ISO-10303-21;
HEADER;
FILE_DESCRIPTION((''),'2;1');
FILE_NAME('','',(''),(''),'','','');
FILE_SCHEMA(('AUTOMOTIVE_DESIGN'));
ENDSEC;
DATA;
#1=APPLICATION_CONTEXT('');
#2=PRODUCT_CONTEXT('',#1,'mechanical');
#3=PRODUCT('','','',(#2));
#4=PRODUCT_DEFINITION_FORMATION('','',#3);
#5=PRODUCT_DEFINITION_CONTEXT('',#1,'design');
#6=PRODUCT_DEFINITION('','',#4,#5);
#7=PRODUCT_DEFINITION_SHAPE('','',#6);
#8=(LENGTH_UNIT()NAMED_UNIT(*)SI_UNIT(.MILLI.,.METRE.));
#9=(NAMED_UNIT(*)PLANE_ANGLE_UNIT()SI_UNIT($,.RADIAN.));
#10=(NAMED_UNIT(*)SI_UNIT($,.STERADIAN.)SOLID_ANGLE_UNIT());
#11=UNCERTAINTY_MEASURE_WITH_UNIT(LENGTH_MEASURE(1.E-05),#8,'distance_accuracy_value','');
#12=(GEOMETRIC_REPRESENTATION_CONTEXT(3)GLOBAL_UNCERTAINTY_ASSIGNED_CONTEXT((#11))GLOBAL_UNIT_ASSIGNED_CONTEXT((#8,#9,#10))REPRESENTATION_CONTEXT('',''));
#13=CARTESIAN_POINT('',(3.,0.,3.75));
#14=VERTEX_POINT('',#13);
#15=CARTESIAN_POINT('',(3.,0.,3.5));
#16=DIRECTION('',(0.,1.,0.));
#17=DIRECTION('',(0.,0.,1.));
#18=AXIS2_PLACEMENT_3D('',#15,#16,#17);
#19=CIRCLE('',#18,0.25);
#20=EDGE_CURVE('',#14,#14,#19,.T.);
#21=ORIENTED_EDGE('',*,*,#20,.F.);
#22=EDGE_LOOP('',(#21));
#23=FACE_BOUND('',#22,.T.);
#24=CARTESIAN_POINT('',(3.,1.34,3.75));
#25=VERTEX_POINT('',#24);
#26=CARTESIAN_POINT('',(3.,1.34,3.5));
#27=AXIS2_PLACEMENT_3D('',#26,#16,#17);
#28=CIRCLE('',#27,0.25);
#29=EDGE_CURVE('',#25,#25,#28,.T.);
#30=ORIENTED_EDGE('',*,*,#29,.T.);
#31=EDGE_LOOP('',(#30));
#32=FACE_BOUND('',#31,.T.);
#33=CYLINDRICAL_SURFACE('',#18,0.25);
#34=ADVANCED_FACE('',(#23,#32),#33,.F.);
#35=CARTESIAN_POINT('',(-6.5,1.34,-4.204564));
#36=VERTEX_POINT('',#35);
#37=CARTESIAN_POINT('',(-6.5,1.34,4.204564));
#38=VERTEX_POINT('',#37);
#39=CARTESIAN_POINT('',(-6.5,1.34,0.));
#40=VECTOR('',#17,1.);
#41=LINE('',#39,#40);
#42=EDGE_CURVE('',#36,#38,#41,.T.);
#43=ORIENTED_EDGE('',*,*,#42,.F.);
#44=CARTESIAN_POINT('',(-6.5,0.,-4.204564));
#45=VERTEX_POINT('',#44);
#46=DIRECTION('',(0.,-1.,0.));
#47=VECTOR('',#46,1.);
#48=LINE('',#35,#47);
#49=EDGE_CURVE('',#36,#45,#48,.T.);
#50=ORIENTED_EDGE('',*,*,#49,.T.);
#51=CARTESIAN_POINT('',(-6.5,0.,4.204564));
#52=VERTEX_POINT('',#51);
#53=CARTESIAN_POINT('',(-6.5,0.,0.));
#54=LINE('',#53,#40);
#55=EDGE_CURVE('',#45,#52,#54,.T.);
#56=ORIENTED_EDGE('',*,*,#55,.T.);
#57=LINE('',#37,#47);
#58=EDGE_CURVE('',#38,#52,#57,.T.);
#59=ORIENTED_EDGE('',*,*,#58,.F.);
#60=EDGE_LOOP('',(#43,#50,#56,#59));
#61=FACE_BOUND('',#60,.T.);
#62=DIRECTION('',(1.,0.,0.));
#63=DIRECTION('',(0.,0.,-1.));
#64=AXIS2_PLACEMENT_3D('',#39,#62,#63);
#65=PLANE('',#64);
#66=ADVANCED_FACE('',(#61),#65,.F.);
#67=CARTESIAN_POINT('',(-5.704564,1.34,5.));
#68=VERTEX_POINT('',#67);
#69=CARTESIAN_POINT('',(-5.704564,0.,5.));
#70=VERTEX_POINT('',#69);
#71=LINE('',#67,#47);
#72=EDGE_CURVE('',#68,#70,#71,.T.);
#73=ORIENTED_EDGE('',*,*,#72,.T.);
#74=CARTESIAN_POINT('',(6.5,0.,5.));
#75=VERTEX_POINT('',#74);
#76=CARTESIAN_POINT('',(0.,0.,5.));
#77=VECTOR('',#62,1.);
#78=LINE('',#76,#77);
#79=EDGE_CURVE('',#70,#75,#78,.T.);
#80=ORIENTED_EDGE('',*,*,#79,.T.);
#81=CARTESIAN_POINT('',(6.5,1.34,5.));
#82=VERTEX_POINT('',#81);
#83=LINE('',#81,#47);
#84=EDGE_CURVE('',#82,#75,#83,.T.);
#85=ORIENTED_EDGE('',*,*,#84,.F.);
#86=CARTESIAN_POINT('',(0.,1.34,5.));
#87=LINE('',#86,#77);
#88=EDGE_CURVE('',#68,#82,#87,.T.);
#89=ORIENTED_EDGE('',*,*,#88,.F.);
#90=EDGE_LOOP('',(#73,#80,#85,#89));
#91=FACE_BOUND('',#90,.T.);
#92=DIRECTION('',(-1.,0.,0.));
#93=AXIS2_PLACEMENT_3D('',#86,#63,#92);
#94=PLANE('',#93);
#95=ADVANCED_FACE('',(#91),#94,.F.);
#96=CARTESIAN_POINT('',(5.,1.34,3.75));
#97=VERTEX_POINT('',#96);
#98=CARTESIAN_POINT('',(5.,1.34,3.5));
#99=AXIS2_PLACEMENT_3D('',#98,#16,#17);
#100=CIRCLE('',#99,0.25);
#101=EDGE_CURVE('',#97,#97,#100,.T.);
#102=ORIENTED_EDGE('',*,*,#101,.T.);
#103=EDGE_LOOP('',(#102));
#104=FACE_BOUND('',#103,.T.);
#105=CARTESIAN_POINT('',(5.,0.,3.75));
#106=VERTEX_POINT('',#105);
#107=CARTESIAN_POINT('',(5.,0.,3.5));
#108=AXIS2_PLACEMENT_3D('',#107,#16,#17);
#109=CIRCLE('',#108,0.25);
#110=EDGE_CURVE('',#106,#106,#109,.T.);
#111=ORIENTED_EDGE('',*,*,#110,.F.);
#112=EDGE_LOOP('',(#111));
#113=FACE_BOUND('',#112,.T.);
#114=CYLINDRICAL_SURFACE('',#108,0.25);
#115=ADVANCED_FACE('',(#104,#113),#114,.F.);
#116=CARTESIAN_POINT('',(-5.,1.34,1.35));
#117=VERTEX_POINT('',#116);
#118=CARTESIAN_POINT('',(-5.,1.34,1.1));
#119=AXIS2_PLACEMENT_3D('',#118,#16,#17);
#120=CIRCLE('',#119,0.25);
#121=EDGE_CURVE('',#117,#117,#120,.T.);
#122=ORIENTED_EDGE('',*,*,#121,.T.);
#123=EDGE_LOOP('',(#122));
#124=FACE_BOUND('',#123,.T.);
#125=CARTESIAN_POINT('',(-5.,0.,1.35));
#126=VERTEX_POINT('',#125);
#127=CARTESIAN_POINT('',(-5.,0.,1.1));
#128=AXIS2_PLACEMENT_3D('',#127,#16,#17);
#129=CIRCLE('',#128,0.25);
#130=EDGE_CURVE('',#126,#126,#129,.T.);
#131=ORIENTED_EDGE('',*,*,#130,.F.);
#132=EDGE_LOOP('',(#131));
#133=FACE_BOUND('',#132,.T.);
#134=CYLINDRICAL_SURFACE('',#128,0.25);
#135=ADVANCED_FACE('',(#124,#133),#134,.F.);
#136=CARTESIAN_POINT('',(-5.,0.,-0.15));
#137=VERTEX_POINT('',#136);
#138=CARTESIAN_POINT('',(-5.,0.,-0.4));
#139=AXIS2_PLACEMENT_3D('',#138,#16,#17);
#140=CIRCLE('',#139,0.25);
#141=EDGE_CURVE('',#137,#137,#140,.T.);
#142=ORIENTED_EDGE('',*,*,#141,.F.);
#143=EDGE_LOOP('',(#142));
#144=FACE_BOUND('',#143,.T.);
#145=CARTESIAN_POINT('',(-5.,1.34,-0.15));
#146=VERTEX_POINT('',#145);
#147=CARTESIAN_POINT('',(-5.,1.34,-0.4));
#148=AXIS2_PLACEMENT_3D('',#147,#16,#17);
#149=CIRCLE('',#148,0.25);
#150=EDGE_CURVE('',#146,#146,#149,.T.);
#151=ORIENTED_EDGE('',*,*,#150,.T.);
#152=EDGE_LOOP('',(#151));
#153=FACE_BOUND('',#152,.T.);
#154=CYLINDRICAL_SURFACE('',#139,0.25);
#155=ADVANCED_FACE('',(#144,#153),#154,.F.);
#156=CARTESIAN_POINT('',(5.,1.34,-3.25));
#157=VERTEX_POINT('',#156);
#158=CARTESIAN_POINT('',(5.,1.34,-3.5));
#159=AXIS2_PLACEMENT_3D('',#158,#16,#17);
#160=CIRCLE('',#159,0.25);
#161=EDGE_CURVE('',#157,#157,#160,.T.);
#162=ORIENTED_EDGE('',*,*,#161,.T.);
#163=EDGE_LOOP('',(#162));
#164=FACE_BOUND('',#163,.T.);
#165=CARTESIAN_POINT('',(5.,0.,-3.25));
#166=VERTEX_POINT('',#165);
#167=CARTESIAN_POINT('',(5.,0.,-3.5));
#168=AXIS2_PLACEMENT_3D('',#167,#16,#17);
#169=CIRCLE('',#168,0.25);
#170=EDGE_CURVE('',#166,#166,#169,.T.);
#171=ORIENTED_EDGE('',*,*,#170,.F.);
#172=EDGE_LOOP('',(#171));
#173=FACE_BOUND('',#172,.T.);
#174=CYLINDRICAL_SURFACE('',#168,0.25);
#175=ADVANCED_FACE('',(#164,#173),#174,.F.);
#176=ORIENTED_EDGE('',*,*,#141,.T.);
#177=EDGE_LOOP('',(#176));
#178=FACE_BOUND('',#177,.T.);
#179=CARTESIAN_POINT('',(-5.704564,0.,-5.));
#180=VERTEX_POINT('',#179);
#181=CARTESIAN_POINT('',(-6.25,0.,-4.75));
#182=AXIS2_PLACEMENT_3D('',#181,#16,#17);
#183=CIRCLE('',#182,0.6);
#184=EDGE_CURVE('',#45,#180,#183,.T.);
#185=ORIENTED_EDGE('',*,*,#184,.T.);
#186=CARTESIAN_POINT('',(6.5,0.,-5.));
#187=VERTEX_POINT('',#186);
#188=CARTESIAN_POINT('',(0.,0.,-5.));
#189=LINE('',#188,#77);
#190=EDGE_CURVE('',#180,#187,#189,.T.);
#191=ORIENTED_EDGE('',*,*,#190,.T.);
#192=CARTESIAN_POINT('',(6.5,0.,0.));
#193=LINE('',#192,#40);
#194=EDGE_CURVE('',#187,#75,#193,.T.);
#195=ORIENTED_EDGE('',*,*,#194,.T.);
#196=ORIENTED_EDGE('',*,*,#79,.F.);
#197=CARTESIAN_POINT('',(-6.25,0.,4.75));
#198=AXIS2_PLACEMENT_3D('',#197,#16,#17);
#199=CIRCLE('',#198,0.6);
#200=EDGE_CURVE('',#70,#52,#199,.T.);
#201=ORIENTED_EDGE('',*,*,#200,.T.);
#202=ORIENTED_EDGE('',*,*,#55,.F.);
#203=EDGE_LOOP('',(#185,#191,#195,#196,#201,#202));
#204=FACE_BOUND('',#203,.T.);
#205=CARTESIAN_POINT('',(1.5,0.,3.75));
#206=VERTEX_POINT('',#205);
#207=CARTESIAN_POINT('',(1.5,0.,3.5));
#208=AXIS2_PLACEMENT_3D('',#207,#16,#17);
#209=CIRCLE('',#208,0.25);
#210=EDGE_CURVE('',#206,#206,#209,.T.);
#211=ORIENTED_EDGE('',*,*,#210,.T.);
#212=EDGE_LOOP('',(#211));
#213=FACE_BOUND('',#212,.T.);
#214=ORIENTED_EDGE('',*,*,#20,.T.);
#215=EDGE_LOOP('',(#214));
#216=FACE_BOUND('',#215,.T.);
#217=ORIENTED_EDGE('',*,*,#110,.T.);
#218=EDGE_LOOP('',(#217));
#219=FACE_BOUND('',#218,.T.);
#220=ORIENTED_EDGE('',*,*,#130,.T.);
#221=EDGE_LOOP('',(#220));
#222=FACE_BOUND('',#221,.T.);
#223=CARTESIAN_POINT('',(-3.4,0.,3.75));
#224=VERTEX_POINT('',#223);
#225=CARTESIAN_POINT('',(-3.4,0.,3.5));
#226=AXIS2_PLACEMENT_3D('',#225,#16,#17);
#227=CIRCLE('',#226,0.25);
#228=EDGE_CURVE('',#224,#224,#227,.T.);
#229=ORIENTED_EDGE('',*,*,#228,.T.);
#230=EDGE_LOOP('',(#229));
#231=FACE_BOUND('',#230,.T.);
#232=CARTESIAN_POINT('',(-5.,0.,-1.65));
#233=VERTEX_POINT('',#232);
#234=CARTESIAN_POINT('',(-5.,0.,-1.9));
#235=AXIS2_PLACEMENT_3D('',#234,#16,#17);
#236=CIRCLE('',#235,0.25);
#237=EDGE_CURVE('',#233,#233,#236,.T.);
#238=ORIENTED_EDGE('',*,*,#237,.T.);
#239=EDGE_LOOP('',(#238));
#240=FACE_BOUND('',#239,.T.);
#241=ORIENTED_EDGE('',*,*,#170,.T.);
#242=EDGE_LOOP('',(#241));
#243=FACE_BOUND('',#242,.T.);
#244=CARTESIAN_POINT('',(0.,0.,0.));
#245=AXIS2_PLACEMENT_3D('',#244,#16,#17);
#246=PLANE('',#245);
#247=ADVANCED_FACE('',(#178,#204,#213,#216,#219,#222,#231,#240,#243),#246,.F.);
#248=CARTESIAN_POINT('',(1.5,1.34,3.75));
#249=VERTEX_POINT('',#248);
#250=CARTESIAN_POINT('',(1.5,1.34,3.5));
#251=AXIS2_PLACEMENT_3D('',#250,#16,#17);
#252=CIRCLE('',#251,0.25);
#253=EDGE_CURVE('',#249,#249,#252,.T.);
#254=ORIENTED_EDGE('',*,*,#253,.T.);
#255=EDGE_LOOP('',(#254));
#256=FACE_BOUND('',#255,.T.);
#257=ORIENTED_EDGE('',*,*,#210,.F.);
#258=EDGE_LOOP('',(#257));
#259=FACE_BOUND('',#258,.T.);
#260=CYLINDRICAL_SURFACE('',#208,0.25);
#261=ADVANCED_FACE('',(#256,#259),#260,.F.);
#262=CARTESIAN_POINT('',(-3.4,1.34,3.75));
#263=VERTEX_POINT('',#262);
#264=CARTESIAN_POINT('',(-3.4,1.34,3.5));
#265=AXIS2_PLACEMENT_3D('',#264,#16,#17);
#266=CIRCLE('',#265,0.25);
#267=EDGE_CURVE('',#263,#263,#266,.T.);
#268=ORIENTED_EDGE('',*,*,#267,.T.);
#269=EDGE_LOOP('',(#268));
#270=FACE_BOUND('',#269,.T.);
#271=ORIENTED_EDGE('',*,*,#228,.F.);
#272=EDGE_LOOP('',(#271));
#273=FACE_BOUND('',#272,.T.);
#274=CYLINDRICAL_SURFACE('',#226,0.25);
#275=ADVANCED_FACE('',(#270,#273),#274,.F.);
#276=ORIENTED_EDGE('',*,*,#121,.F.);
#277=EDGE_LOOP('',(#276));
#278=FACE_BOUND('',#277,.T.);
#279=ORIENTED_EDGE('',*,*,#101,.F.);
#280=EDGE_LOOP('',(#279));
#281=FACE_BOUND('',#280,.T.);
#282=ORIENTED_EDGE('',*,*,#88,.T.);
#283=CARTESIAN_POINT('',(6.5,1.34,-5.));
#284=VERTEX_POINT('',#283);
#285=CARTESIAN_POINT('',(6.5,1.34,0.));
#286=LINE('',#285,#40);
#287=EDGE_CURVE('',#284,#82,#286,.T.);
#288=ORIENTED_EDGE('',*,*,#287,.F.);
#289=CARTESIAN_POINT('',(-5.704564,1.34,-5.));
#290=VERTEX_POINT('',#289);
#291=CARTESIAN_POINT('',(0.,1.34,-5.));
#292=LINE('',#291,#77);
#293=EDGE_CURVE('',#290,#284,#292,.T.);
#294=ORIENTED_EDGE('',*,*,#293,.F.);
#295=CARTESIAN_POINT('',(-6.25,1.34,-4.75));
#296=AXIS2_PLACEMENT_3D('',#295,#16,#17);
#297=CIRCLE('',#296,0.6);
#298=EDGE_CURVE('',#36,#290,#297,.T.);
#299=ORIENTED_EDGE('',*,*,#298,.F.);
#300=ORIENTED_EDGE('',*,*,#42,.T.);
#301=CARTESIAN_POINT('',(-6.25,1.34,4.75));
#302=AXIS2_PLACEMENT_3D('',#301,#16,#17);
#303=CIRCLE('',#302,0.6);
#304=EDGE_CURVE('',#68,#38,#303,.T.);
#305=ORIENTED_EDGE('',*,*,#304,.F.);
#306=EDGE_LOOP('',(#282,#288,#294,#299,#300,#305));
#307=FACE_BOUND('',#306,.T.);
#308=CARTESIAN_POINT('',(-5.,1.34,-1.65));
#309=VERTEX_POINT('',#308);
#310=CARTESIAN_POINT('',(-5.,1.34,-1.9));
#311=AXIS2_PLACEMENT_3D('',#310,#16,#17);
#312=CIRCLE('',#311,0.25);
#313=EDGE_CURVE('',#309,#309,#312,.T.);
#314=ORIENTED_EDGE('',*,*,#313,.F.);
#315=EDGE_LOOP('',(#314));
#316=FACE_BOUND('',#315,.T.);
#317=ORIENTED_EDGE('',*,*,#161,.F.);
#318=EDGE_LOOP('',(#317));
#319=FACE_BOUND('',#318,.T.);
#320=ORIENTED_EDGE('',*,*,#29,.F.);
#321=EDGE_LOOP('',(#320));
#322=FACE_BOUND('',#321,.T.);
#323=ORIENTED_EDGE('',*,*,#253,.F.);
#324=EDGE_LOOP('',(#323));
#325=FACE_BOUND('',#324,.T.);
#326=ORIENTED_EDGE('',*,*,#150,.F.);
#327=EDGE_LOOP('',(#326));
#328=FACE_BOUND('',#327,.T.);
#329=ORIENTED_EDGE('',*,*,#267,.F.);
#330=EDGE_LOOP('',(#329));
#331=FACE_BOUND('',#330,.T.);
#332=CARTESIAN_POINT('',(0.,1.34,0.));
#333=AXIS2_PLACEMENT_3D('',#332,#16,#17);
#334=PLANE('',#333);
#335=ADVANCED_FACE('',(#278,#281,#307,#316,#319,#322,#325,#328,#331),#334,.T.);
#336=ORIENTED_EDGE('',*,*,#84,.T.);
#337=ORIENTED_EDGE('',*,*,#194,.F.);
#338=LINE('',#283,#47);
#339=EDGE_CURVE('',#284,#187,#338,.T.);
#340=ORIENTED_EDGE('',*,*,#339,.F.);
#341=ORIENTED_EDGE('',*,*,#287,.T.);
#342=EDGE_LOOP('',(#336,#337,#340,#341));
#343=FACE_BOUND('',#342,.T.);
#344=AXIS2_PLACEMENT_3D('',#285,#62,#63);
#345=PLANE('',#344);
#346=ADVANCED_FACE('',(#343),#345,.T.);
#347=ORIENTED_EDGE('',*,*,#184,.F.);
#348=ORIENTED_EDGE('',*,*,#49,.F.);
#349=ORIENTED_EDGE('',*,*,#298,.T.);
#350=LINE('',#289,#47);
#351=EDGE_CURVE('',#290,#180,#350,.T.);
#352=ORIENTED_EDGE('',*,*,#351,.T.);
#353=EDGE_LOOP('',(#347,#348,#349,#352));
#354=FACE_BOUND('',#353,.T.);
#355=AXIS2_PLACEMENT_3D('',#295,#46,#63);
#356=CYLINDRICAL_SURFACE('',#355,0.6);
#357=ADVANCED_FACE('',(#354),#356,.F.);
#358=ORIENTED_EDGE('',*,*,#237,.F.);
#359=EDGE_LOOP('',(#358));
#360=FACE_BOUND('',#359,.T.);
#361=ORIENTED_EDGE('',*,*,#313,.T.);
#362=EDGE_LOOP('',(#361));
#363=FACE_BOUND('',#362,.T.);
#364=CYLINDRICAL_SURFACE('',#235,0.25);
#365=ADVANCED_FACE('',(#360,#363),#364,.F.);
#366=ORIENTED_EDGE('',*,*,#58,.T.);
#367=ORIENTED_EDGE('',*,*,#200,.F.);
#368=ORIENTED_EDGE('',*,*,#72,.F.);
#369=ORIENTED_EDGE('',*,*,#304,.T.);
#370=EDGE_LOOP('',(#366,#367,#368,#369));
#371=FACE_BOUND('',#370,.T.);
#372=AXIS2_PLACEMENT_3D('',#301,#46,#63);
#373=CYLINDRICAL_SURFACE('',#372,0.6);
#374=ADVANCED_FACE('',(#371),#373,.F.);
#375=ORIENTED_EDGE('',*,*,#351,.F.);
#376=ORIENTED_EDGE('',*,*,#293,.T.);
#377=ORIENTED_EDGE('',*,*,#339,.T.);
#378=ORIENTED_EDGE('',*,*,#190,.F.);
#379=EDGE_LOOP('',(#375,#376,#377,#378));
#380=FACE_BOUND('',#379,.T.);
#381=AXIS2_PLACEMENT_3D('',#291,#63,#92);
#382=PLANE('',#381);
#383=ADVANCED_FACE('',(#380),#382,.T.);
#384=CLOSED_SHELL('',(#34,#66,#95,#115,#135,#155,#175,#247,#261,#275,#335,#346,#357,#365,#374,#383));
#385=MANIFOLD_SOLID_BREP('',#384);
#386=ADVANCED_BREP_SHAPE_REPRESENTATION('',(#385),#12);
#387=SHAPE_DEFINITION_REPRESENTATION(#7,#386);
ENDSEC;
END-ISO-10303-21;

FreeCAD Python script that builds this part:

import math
import FreeCAD as App
import Part
import Sketcher
from FreeCAD import Vector

doc = App.newDocument("Part")
body = doc.addObject("PartDesign::Body", "Body")

sketch1 = body.newObject("Sketcher::SketchObject", "Sketch")
sketch1.AttachmentSupport = (doc.getObject("XZ_Plane"), [""])
sketch1.MapMode = "FlatFace"
sketch1.addGeometry([
    Part.ArcOfCircle(Part.Circle(Vector(-6.2, -4.8, 0), Vector(0, 0, 1), 0.6), math.radians(-25), math.radians(115)),
    Part.LineSegment(Vector(-6.5, -4.2, 0), Vector(-6.5, 4.2, 0)),
    Part.ArcOfCircle(Part.Circle(Vector(-6.2, 4.8, 0), Vector(0, 0, 1), 0.6), math.radians(-115), math.radians(25)),
    Part.LineSegment(Vector(-5.7, 5, 0), Vector(6.5, 5, 0)),
    Part.LineSegment(Vector(6.5, 5, 0), Vector(6.5, -5, 0)),
    Part.LineSegment(Vector(6.5, -5, 0), Vector(-5.7, -5, 0)),
], False)
sketch1.addConstraint([
    Sketcher.Constraint("Coincident", 0, 2, 1, 1),
    Sketcher.Constraint("Coincident", 1, 2, 2, 1),
    Sketcher.Constraint("Coincident", 2, 2, 3, 1),
    Sketcher.Constraint("Coincident", 3, 2, 4, 1),
    Sketcher.Constraint("Coincident", 4, 2, 5, 1),
    Sketcher.Constraint("Coincident", 5, 2, 0, 1),
    Sketcher.Constraint("Vertical", 1),
    Sketcher.Constraint("Horizontal", 3),
    Sketcher.Constraint("Vertical", 4),
    Sketcher.Constraint("Horizontal", 5),
    Sketcher.Constraint("Equal", 0, 2),
    Sketcher.Constraint("Symmetric", 0, 3, 2, 3, -1),
    Sketcher.Constraint("Vertical", 2, 2, 5, 2),
    Sketcher.Constraint("Radius", 0, 0.6),
    Sketcher.Constraint("DistanceY", 4, 2, 4, 1, 10.0),
    Sketcher.Constraint("DistanceX", 1, 2, 3, 2, 13.0),
    Sketcher.Constraint("DistanceX", 0, 2, -1, 1, 6.5),
    Sketcher.Constraint("DistanceY", 0, 3, 2, 3, 9.5),
    Sketcher.Constraint("DistanceX", 0, 3, -1, 1, 6.25),
])
pad1 = body.newObject("PartDesign::Pad", "Pad")
pad1.Profile = sketch1
pad1.Length = 1.34
pad1.Reversed = True

sketch2 = body.newObject("Sketcher::SketchObject", "Sketch001")
sketch2.AttachmentSupport = (doc.getObject("XZ_Plane"), [""])
sketch2.MapMode = "FlatFace"
sketch2.AttachmentOffset = App.Placement(Vector(0, 0, -1.34), App.Rotation())
sketch2.addGeometry([
    Part.Circle(Vector(-5, -1.9, 0), Vector(0, 0, 1), 0.25),
    Part.Circle(Vector(-5, -0.4, 0), Vector(0, 0, 1), 0.25),
    Part.Circle(Vector(-5, 1.1, 0), Vector(0, 0, 1), 0.25),
    Part.Circle(Vector(5, -3.5, 0), Vector(0, 0, 1), 0.25),
    Part.Circle(Vector(5, 3.5, 0), Vector(0, 0, 1), 0.25),
    Part.Circle(Vector(3, 3.5, 0), Vector(0, 0, 1), 0.25),
    Part.Circle(Vector(1.5, 3.5, 0), Vector(0, 0, 1), 0.25),
    Part.Circle(Vector(-3.4, 3.5, 0), Vector(0, 0, 1), 0.25),
], False)
sketch2.addConstraint([
    Sketcher.Constraint("Equal", 0, 1),
    Sketcher.Constraint("Equal", 1, 2),
    Sketcher.Constraint("Equal", 2, 3),
    Sketcher.Constraint("Equal", 3, 4),
    Sketcher.Constraint("Equal", 4, 5),
    Sketcher.Constraint("Equal", 5, 6),
    Sketcher.Constraint("Equal", 6, 7),
    Sketcher.Constraint("Symmetric", 3, 3, 4, 3, -1),
    Sketcher.Constraint("Horizontal", 4, 3, 5, 3),
    Sketcher.Constraint("Horizontal", 5, 3, 6, 3),
    Sketcher.Constraint("Horizontal", 6, 3, 7, 3),
    Sketcher.Constraint("Vertical", 0, 3, 1, 3),
    Sketcher.Constraint("Vertical", 1, 3, 2, 3),
    Sketcher.Constraint("Diameter", 0, 0.5),
    Sketcher.Constraint("DistanceX", 0, 3, -1, 1, 5.0),
    Sketcher.Constraint("DistanceX", -1, 1, 3, 3, 5.0),
    Sketcher.Constraint("DistanceX", -1, 1, 5, 3, 3.0),
    Sketcher.Constraint("DistanceY", 0, 3, 2, 3, 3.0),
    Sketcher.Constraint("DistanceY", 3, 3, 4, 3, 7.0),
    Sketcher.Constraint("DistanceY", 0, 3, -1, 1, 1.9),
    Sketcher.Constraint("DistanceY", 1, 3, -1, 1, 0.4),
    Sketcher.Constraint("DistanceX", -1, 1, 6, 3, 1.5),
    Sketcher.Constraint("DistanceX", 7, 3, -1, 1, 3.4),
])
pocket1 = body.newObject("PartDesign::Pocket", "Pocket")
pocket1.Profile = sketch2
pocket1.Type = "ThroughAll"
pocket1.Reversed = True

doc.recompute()
